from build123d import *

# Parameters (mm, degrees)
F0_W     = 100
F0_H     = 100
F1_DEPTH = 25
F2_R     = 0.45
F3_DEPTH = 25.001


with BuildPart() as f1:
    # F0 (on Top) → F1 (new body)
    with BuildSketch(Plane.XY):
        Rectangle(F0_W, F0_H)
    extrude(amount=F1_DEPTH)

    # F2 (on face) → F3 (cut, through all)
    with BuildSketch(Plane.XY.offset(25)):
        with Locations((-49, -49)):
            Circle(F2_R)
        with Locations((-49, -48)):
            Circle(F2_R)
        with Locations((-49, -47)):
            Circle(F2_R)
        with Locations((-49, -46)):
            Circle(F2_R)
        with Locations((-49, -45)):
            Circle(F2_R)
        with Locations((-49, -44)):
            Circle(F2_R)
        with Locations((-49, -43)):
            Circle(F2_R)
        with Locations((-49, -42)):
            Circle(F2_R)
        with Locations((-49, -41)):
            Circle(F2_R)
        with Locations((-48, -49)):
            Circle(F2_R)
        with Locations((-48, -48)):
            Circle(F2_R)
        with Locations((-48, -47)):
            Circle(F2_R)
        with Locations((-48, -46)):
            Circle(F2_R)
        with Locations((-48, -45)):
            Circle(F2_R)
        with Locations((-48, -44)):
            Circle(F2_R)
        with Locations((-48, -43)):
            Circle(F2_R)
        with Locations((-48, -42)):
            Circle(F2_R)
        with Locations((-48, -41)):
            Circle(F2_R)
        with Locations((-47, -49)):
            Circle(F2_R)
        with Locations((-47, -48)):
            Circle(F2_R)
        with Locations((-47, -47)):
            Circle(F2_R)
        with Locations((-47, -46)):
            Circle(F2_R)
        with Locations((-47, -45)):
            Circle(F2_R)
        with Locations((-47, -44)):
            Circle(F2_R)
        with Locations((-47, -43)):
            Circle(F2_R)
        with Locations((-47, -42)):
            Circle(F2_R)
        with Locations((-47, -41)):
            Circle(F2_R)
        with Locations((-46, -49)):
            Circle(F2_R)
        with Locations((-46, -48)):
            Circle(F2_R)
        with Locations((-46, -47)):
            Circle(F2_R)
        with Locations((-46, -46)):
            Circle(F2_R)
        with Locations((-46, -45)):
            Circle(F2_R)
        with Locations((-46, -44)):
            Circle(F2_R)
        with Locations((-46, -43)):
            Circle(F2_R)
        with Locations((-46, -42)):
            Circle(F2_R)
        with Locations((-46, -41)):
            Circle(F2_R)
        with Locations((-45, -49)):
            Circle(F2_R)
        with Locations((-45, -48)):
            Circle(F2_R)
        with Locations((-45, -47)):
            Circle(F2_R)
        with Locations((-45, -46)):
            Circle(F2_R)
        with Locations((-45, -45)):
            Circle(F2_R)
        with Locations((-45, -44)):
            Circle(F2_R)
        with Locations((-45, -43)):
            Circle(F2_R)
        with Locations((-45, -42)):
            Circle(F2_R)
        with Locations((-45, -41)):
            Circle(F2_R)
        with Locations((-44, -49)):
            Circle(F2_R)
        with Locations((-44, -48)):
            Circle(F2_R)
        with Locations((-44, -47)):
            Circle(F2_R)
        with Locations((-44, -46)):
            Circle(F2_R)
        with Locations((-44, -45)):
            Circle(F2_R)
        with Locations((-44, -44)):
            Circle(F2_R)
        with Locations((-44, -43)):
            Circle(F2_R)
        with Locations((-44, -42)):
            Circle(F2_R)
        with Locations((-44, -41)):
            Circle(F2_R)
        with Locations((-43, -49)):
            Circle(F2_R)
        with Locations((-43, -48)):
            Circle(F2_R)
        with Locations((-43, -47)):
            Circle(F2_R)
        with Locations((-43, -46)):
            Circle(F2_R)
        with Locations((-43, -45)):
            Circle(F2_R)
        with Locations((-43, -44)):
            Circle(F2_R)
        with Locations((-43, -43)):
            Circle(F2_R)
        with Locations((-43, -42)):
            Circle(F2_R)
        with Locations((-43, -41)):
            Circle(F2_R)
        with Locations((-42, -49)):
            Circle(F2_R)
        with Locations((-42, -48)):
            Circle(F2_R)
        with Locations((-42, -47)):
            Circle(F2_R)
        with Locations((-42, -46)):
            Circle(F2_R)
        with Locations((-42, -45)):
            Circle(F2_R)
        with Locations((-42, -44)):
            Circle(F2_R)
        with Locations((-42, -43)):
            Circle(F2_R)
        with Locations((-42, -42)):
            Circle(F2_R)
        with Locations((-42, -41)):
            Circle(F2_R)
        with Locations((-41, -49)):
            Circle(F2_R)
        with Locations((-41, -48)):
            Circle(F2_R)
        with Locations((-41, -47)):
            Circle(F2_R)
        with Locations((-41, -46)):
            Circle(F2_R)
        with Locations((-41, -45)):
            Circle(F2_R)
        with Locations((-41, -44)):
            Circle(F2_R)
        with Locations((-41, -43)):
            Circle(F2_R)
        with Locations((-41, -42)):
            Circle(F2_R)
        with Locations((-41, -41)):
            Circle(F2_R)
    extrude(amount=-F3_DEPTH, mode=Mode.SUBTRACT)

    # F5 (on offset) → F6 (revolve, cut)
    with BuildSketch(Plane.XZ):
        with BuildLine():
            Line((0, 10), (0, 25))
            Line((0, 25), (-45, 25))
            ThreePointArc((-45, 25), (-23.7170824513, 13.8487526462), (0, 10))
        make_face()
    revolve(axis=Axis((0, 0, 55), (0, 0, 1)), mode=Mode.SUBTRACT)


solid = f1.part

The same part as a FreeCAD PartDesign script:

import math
import FreeCAD as App
import Part
import Sketcher

doc = App.newDocument("Part")
body = doc.addObject("PartDesign::Body", "Body")

sketch1 = doc.addObject("Sketcher::SketchObject", "Sketch")
body.addObject(sketch1)
sketch1.AttachmentSupport = (doc.XY_Plane, [""])
sketch1.MapMode = "FlatFace"
sketch1.addGeometry([
    Part.LineSegment(App.Vector(-50, 50, 0), App.Vector(-50, -50, 0)),
    Part.LineSegment(App.Vector(-50, -50, 0), App.Vector(50, -50, 0)),
    Part.LineSegment(App.Vector(50, -50, 0), App.Vector(50, 50, 0)),
    Part.LineSegment(App.Vector(50, 50, 0), App.Vector(-50, 50, 0)),
], False)
sketch1.addConstraint([
    Sketcher.Constraint("Coincident", 0, 2, 1, 1),
    Sketcher.Constraint("Coincident", 1, 2, 2, 1),
    Sketcher.Constraint("Coincident", 2, 2, 3, 1),
    Sketcher.Constraint("Coincident", 3, 2, 0, 1),
    Sketcher.Constraint("Vertical", 0),
    Sketcher.Constraint("Horizontal", 1),
    Sketcher.Constraint("Vertical", 2),
    Sketcher.Constraint("Horizontal", 3),
    Sketcher.Constraint("Symmetric", 0, 2, 2, 2, -1, 1),
    Sketcher.Constraint("Equal", 3, 0),
    Sketcher.Constraint("DistanceX", 1, 1, 1, 2, 100.0),
])
pad1 = doc.addObject("PartDesign::Pad", "Pad")
body.addObject(pad1)
pad1.Profile = sketch1
pad1.Length = 25

sketch2 = doc.addObject("Sketcher::SketchObject", "Sketch001")
body.addObject(sketch2)
sketch2.AttachmentSupport = (doc.XY_Plane, [""])
sketch2.MapMode = "FlatFace"
sketch2.AttachmentOffset = App.Placement(App.Vector(0, 0, 25), App.Rotation())
sketch2.addGeometry([
    Part.Circle(App.Vector(-49, -49, 0), App.Vector(0, 0, 1), 0.45),
    Part.Circle(App.Vector(-49, -48, 0), App.Vector(0, 0, 1), 0.45),
    Part.Circle(App.Vector(-49, -47, 0), App.Vector(0, 0, 1), 0.45),
    Part.Circle(App.Vector(-49, -46, 0), App.Vector(0, 0, 1), 0.45),
    Part.Circle(App.Vector(-49, -45, 0), App.Vector(0, 0, 1), 0.45),
    Part.Circle(App.Vector(-49, -44, 0), App.Vector(0, 0, 1), 0.45),
    Part.Circle(App.Vector(-49, -43, 0), App.Vector(0, 0, 1), 0.45),
    Part.Circle(App.Vector(-49, -42, 0), App.Vector(0, 0, 1), 0.45),
    Part.Circle(App.Vector(-49, -41, 0), App.Vector(0, 0, 1), 0.45),
    Part.Circle(App.Vector(-48, -49, 0), App.Vector(0, 0, 1), 0.45),
    Part.Circle(App.Vector(-48, -48, 0), App.Vector(0, 0, 1), 0.45),
    Part.Circle(App.Vector(-48, -47, 0), App.Vector(0, 0, 1), 0.45),
    Part.Circle(App.Vector(-48, -46, 0), App.Vector(0, 0, 1), 0.45),
    Part.Circle(App.Vector(-48, -45, 0), App.Vector(0, 0, 1), 0.45),
    Part.Circle(App.Vector(-48, -44, 0), App.Vector(0, 0, 1), 0.45),
    Part.Circle(App.Vector(-48, -43, 0), App.Vector(0, 0, 1), 0.45),
    Part.Circle(App.Vector(-48, -42, 0), App.Vector(0, 0, 1), 0.45),
    Part.Circle(App.Vector(-48, -41, 0), App.Vector(0, 0, 1), 0.45),
    Part.Circle(App.Vector(-47, -49, 0), App.Vector(0, 0, 1), 0.45),
    Part.Circle(App.Vector(-47, -48, 0), App.Vector(0, 0, 1), 0.45),
    Part.Circle(App.Vector(-47, -47, 0), App.Vector(0, 0, 1), 0.45),
    Part.Circle(App.Vector(-47, -46, 0), App.Vector(0, 0, 1), 0.45),
    Part.Circle(App.Vector(-47, -45, 0), App.Vector(0, 0, 1), 0.45),
    Part.Circle(App.Vector(-47, -44, 0), App.Vector(0, 0, 1), 0.45),
    Part.Circle(App.Vector(-47, -43, 0), App.Vector(0, 0, 1), 0.45),
    Part.Circle(App.Vector(-47, -42, 0), App.Vector(0, 0, 1), 0.45),
    Part.Circle(App.Vector(-47, -41, 0), App.Vector(0, 0, 1), 0.45),
    Part.Circle(App.Vector(-46, -49, 0), App.Vector(0, 0, 1), 0.45),
    Part.Circle(App.Vector(-46, -48, 0), App.Vector(0, 0, 1), 0.45),
    Part.Circle(App.Vector(-46, -47, 0), App.Vector(0, 0, 1), 0.45),
    Part.Circle(App.Vector(-46, -46, 0), App.Vector(0, 0, 1), 0.45),
    Part.Circle(App.Vector(-46, -45, 0), App.Vector(0, 0, 1), 0.45),
    Part.Circle(App.Vector(-46, -44, 0), App.Vector(0, 0, 1), 0.45),
    Part.Circle(App.Vector(-46, -43, 0), App.Vector(0, 0, 1), 0.45),
    Part.Circle(App.Vector(-46, -42, 0), App.Vector(0, 0, 1), 0.45),
    Part.Circle(App.Vector(-46, -41, 0), App.Vector(0, 0, 1), 0.45),
    Part.Circle(App.Vector(-45, -49, 0), App.Vector(0, 0, 1), 0.45),
    Part.Circle(App.Vector(-45, -48, 0), App.Vector(0, 0, 1), 0.45),
    Part.Circle(App.Vector(-45, -47, 0), App.Vector(0, 0, 1), 0.45),
    Part.Circle(App.Vector(-45, -46, 0), App.Vector(0, 0, 1), 0.45),
    Part.Circle(App.Vector(-45, -45, 0), App.Vector(0, 0, 1), 0.45),
    Part.Circle(App.Vector(-45, -44, 0), App.Vector(0, 0, 1), 0.45),
    Part.Circle(App.Vector(-45, -43, 0), App.Vector(0, 0, 1), 0.45),
    Part.Circle(App.Vector(-45, -42, 0), App.Vector(0, 0, 1), 0.45),
    Part.Circle(App.Vector(-45, -41, 0), App.Vector(0, 0, 1), 0.45),
    Part.Circle(App.Vector(-44, -49, 0), App.Vector(0, 0, 1), 0.45),
    Part.Circle(App.Vector(-44, -48, 0), App.Vector(0, 0, 1), 0.45),
    Part.Circle(App.Vector(-44, -47, 0), App.Vector(0, 0, 1), 0.45),
    Part.Circle(App.Vector(-44, -46, 0), App.Vector(0, 0, 1), 0.45),
    Part.Circle(App.Vector(-44, -45, 0), App.Vector(0, 0, 1), 0.45),
    Part.Circle(App.Vector(-44, -44, 0), App.Vector(0, 0, 1), 0.45),
    Part.Circle(App.Vector(-44, -43, 0), App.Vector(0, 0, 1), 0.45),
    Part.Circle(App.Vector(-44, -42, 0), App.Vector(0, 0, 1), 0.45),
    Part.Circle(App.Vector(-44, -41, 0), App.Vector(0, 0, 1), 0.45),
    Part.Circle(App.Vector(-43, -49, 0), App.Vector(0, 0, 1), 0.45),
    Part.Circle(App.Vector(-43, -48, 0), App.Vector(0, 0, 1), 0.45),
    Part.Circle(App.Vector(-43, -47, 0), App.Vector(0, 0, 1), 0.45),
    Part.Circle(App.Vector(-43, -46, 0), App.Vector(0, 0, 1), 0.45),
    Part.Circle(App.Vector(-43, -45, 0), App.Vector(0, 0, 1), 0.45),
    Part.Circle(App.Vector(-43, -44, 0), App.Vector(0, 0, 1), 0.45),
    Part.Circle(App.Vector(-43, -43, 0), App.Vector(0, 0, 1), 0.45),
    Part.Circle(App.Vector(-43, -42, 0), App.Vector(0, 0, 1), 0.45),
    Part.Circle(App.Vector(-43, -41, 0), App.Vector(0, 0, 1), 0.45),
    Part.Circle(App.Vector(-42, -49, 0), App.Vector(0, 0, 1), 0.45),
    Part.Circle(App.Vector(-42, -48, 0), App.Vector(0, 0, 1), 0.45),
    Part.Circle(App.Vector(-42, -47, 0), App.Vector(0, 0, 1), 0.45),
    Part.Circle(App.Vector(-42, -46, 0), App.Vector(0, 0, 1), 0.45),
    Part.Circle(App.Vector(-42, -45, 0), App.Vector(0, 0, 1), 0.45),
    Part.Circle(App.Vector(-42, -44, 0), App.Vector(0, 0, 1), 0.45),
    Part.Circle(App.Vector(-42, -43, 0), App.Vector(0, 0, 1), 0.45),
    Part.Circle(App.Vector(-42, -42, 0), App.Vector(0, 0, 1), 0.45),
    Part.Circle(App.Vector(-42, -41, 0), App.Vector(0, 0, 1), 0.45),
    Part.Circle(App.Vector(-41, -49, 0), App.Vector(0, 0, 1), 0.45),
    Part.Circle(App.Vector(-41, -48, 0), App.Vector(0, 0, 1), 0.45),
    Part.Circle(App.Vector(-41, -47, 0), App.Vector(0, 0, 1), 0.45),
    Part.Circle(App.Vector(-41, -46, 0), App.Vector(0, 0, 1), 0.45),
    Part.Circle(App.Vector(-41, -45, 0), App.Vector(0, 0, 1), 0.45),
    Part.Circle(App.Vector(-41, -44, 0), App.Vector(0, 0, 1), 0.45),
    Part.Circle(App.Vector(-41, -43, 0), App.Vector(0, 0, 1), 0.45),
    Part.Circle(App.Vector(-41, -42, 0), App.Vector(0, 0, 1), 0.45),
    Part.Circle(App.Vector(-41, -41, 0), App.Vector(0, 0, 1), 0.45),
], False)
sketch2.addConstraint([
    Sketcher.Constraint("Equal", 0, 1),
    Sketcher.Constraint("Equal", 1, 2),
    Sketcher.Constraint("Equal", 2, 3),
    Sketcher.Constraint("Equal", 3, 4),
    Sketcher.Constraint("Equal", 4, 5),
    Sketcher.Constraint("Equal", 5, 6),
    Sketcher.Constraint("Equal", 6, 7),
    Sketcher.Constraint("Equal", 7, 8),
    Sketcher.Constraint("Equal", 8, 9),
    Sketcher.Constraint("Equal", 9, 10),
    Sketcher.Constraint("Equal", 10, 11),
    Sketcher.Constraint("Equal", 11, 12),
    Sketcher.Constraint("Equal", 12, 13),
    Sketcher.Constraint("Equal", 13, 14),
    Sketcher.Constraint("Equal", 14, 15),
    Sketcher.Constraint("Equal", 15, 16),
    Sketcher.Constraint("Equal", 16, 17),
    Sketcher.Constraint("Equal", 17, 18),
    Sketcher.Constraint("Equal", 18, 19),
    Sketcher.Constraint("Equal", 19, 20),
    Sketcher.Constraint("Equal", 20, 21),
    Sketcher.Constraint("Equal", 21, 22),
    Sketcher.Constraint("Equal", 22, 23),
    Sketcher.Constraint("Equal", 23, 24),
    Sketcher.Constraint("Equal", 24, 25),
    Sketcher.Constraint("Equal", 25, 26),
    Sketcher.Constraint("Equal", 26, 27),
    Sketcher.Constraint("Equal", 27, 28),
    Sketcher.Constraint("Equal", 28, 29),
    Sketcher.Constraint("Equal", 29, 30),
    Sketcher.Constraint("Equal", 30, 31),
    Sketcher.Constraint("Equal", 31, 32),
    Sketcher.Constraint("Equal", 32, 33),
    Sketcher.Constraint("Equal", 33, 34),
    Sketcher.Constraint("Equal", 34, 35),
    Sketcher.Constraint("Equal", 35, 36),
    Sketcher.Constraint("Equal", 36, 37),
    Sketcher.Constraint("Equal", 37, 38),
    Sketcher.Constraint("Equal", 38, 39),
    Sketcher.Constraint("Equal", 39, 40),
    Sketcher.Constraint("Equal", 40, 41),
    Sketcher.Constraint("Equal", 41, 42),
    Sketcher.Constraint("Equal", 42, 43),
    Sketcher.Constraint("Equal", 43, 44),
    Sketcher.Constraint("Equal", 44, 45),
    Sketcher.Constraint("Equal", 45, 46),
    Sketcher.Constraint("Equal", 46, 47),
    Sketcher.Constraint("Equal", 47, 48),
    Sketcher.Constraint("Equal", 48, 49),
    Sketcher.Constraint("Equal", 49, 50),
    Sketcher.Constraint("Equal", 50, 51),
    Sketcher.Constraint("Equal", 51, 52),
    Sketcher.Constraint("Equal", 52, 53),
    Sketcher.Constraint("Equal", 53, 54),
    Sketcher.Constraint("Equal", 54, 55),
    Sketcher.Constraint("Equal", 55, 56),
    Sketcher.Constraint("Equal", 56, 57),
    Sketcher.Constraint("Equal", 57, 58),
    Sketcher.Constraint("Equal", 58, 59),
    Sketcher.Constraint("Equal", 59, 60),
    Sketcher.Constraint("Equal", 60, 61),
    Sketcher.Constraint("Equal", 61, 62),
    Sketcher.Constraint("Equal", 62, 63),
    Sketcher.Constraint("Equal", 63, 64),
    Sketcher.Constraint("Equal", 64, 65),
    Sketcher.Constraint("Equal", 65, 66),
    Sketcher.Constraint("Equal", 66, 67),
    Sketcher.Constraint("Equal", 67, 68),
    Sketcher.Constraint("Equal", 68, 69),
    Sketcher.Constraint("Equal", 69, 70),
    Sketcher.Constraint("Equal", 70, 71),
    Sketcher.Constraint("Equal", 71, 72),
    Sketcher.Constraint("Equal", 72, 73),
    Sketcher.Constraint("Equal", 73, 74),
    Sketcher.Constraint("Equal", 74, 75),
    Sketcher.Constraint("Equal", 75, 76),
    Sketcher.Constraint("Equal", 76, 77),
    Sketcher.Constraint("Equal", 77, 78),
    Sketcher.Constraint("Equal", 78, 79),
    Sketcher.Constraint("Equal", 79, 80),
    Sketcher.Constraint("Horizontal", 0, 3, 9, 3),
    Sketcher.Constraint("Horizontal", 1, 3, 10, 3),
    Sketcher.Constraint("Horizontal", 2, 3, 11, 3),
    Sketcher.Constraint("Horizontal", 3, 3, 12, 3),
    Sketcher.Constraint("Horizontal", 4, 3, 13, 3),
    Sketcher.Constraint("Horizontal", 5, 3, 14, 3),
    Sketcher.Constraint("Horizontal", 6, 3, 15, 3),
    Sketcher.Constraint("Horizontal", 7, 3, 16, 3),
    Sketcher.Constraint("Horizontal", 8, 3, 17, 3),
    Sketcher.Constraint("Horizontal", 9, 3, 18, 3),
    Sketcher.Constraint("Horizontal", 10, 3, 19, 3),
    Sketcher.Constraint("Horizontal", 11, 3, 20, 3),
    Sketcher.Constraint("Horizontal", 12, 3, 21, 3),
    Sketcher.Constraint("Horizontal", 13, 3, 22, 3),
    Sketcher.Constraint("Horizontal", 14, 3, 23, 3),
    Sketcher.Constraint("Horizontal", 15, 3, 24, 3),
    Sketcher.Constraint("Horizontal", 16, 3, 25, 3),
    Sketcher.Constraint("Horizontal", 17, 3, 26, 3),
    Sketcher.Constraint("Horizontal", 18, 3, 27, 3),
    Sketcher.Constraint("Horizontal", 19, 3, 28, 3),
    Sketcher.Constraint("Horizontal", 20, 3, 29, 3),
    Sketcher.Constraint("Horizontal", 21, 3, 30, 3),
    Sketcher.Constraint("Horizontal", 22, 3, 31, 3),
    Sketcher.Constraint("Horizontal", 23, 3, 32, 3),
    Sketcher.Constraint("Horizontal", 24, 3, 33, 3),
    Sketcher.Constraint("Horizontal", 25, 3, 34, 3),
    Sketcher.Constraint("Horizontal", 26, 3, 35, 3),
    Sketcher.Constraint("Horizontal", 27, 3, 36, 3),
    Sketcher.Constraint("Horizontal", 28, 3, 37, 3),
    Sketcher.Constraint("Horizontal", 29, 3, 38, 3),
    Sketcher.Constraint("Horizontal", 30, 3, 39, 3),
    Sketcher.Constraint("Horizontal", 31, 3, 40, 3),
    Sketcher.Constraint("Horizontal", 32, 3, 41, 3),
    Sketcher.Constraint("Horizontal", 33, 3, 42, 3),
    Sketcher.Constraint("Horizontal", 34, 3, 43, 3),
    Sketcher.Constraint("Horizontal", 35, 3, 44, 3),
    Sketcher.Constraint("Horizontal", 36, 3, 45, 3),
    Sketcher.Constraint("Horizontal", 37, 3, 46, 3),
    Sketcher.Constraint("Horizontal", 38, 3, 47, 3),
    Sketcher.Constraint("Horizontal", 39, 3, 48, 3),
    Sketcher.Constraint("Horizontal", 40, 3, 49, 3),
    Sketcher.Constraint("Horizontal", 41, 3, 50, 3),
    Sketcher.Constraint("Horizontal", 42, 3, 51, 3),
    Sketcher.Constraint("Horizontal", 43, 3, 52, 3),
    Sketcher.Constraint("Horizontal", 44, 3, 53, 3),
    Sketcher.Constraint("Horizontal", 45, 3, 54, 3),
    Sketcher.Constraint("Horizontal", 46, 3, 55, 3),
    Sketcher.Constraint("Horizontal", 47, 3, 56, 3),
    Sketcher.Constraint("Horizontal", 48, 3, 57, 3),
    Sketcher.Constraint("Horizontal", 49, 3, 58, 3),
    Sketcher.Constraint("Horizontal", 50, 3, 59, 3),
    Sketcher.Constraint("Horizontal", 51, 3, 60, 3),
    Sketcher.Constraint("Horizontal", 52, 3, 61, 3),
    Sketcher.Constraint("Horizontal", 53, 3, 62, 3),
    Sketcher.Constraint("Horizontal", 54, 3, 63, 3),
    Sketcher.Constraint("Horizontal", 55, 3, 64, 3),
    Sketcher.Constraint("Horizontal", 56, 3, 65, 3),
    Sketcher.Constraint("Horizontal", 57, 3, 66, 3),
    Sketcher.Constraint("Horizontal", 58, 3, 67, 3),
    Sketcher.Constraint("Horizontal", 59, 3, 68, 3),
    Sketcher.Constraint("Horizontal", 60, 3, 69, 3),
    Sketcher.Constraint("Horizontal", 61, 3, 70, 3),
    Sketcher.Constraint("Horizontal", 62, 3, 71, 3),
    Sketcher.Constraint("Horizontal", 63, 3, 72, 3),
    Sketcher.Constraint("Horizontal", 64, 3, 73, 3),
    Sketcher.Constraint("Horizontal", 65, 3, 74, 3),
    Sketcher.Constraint("Horizontal", 66, 3, 75, 3),
    Sketcher.Constraint("Horizontal", 67, 3, 76, 3),
    Sketcher.Constraint("Horizontal", 68, 3, 77, 3),
    Sketcher.Constraint("Horizontal", 69, 3, 78, 3),
    Sketcher.Constraint("Horizontal", 70, 3, 79, 3),
    Sketcher.Constraint("Horizontal", 71, 3, 80, 3),
    Sketcher.Constraint("Vertical", 0, 3, 1, 3),
    Sketcher.Constraint("Vertical", 1, 3, 2, 3),
    Sketcher.Constraint("Vertical", 2, 3, 3, 3),
    Sketcher.Constraint("Vertical", 3, 3, 4, 3),
    Sketcher.Constraint("Vertical", 4, 3, 5, 3),
    Sketcher.Constraint("Vertical", 5, 3, 6, 3),
    Sketcher.Constraint("Vertical", 6, 3, 7, 3),
    Sketcher.Constraint("Vertical", 7, 3, 8, 3),
    Sketcher.Constraint("Vertical", 9, 3, 10, 3),
    Sketcher.Constraint("Vertical", 10, 3, 11, 3),
    Sketcher.Constraint("Vertical", 11, 3, 12, 3),
    Sketcher.Constraint("Vertical", 12, 3, 13, 3),
    Sketcher.Constraint("Vertical", 13, 3, 14, 3),
    Sketcher.Constraint("Vertical", 14, 3, 15, 3),
    Sketcher.Constraint("Vertical", 15, 3, 16, 3),
    Sketcher.Constraint("Vertical", 16, 3, 17, 3),
    Sketcher.Constraint("Vertical", 18, 3, 19, 3),
    Sketcher.Constraint("Vertical", 19, 3, 20, 3),
    Sketcher.Constraint("Vertical", 20, 3, 21, 3),
    Sketcher.Constraint("Vertical", 21, 3, 22, 3),
    Sketcher.Constraint("Vertical", 22, 3, 23, 3),
    Sketcher.Constraint("Vertical", 23, 3, 24, 3),
    Sketcher.Constraint("Vertical", 24, 3, 25, 3),
    Sketcher.Constraint("Vertical", 25, 3, 26, 3),
    Sketcher.Constraint("Vertical", 27, 3, 28, 3),
    Sketcher.Constraint("Vertical", 28, 3, 29, 3),
    Sketcher.Constraint("Vertical", 29, 3, 30, 3),
    Sketcher.Constraint("Vertical", 30, 3, 31, 3),
    Sketcher.Constraint("Vertical", 31, 3, 32, 3),
    Sketcher.Constraint("Vertical", 32, 3, 33, 3),
    Sketcher.Constraint("Vertical", 33, 3, 34, 3),
    Sketcher.Constraint("Vertical", 34, 3, 35, 3),
    Sketcher.Constraint("Vertical", 36, 3, 37, 3),
    Sketcher.Constraint("Vertical", 37, 3, 38, 3),
    Sketcher.Constraint("Vertical", 38, 3, 39, 3),
    Sketcher.Constraint("Vertical", 39, 3, 40, 3),
    Sketcher.Constraint("Vertical", 40, 3, 41, 3),
    Sketcher.Constraint("Vertical", 41, 3, 42, 3),
    Sketcher.Constraint("Vertical", 42, 3, 43, 3),
    Sketcher.Constraint("Vertical", 43, 3, 44, 3),
    Sketcher.Constraint("Vertical", 45, 3, 46, 3),
    Sketcher.Constraint("Vertical", 46, 3, 47, 3),
    Sketcher.Constraint("Vertical", 47, 3, 48, 3),
    Sketcher.Constraint("Vertical", 48, 3, 49, 3),
    Sketcher.Constraint("Vertical", 49, 3, 50, 3),
    Sketcher.Constraint("Vertical", 50, 3, 51, 3),
    Sketcher.Constraint("Vertical", 51, 3, 52, 3),
    Sketcher.Constraint("Vertical", 52, 3, 53, 3),
    Sketcher.Constraint("Vertical", 54, 3, 55, 3),
    Sketcher.Constraint("Vertical", 55, 3, 56, 3),
    Sketcher.Constraint("Vertical", 56, 3, 57, 3),
    Sketcher.Constraint("Vertical", 57, 3, 58, 3),
    Sketcher.Constraint("Vertical", 58, 3, 59, 3),
    Sketcher.Constraint("Vertical", 59, 3, 60, 3),
    Sketcher.Constraint("Vertical", 60, 3, 61, 3),
    Sketcher.Constraint("Vertical", 61, 3, 62, 3),
    Sketcher.Constraint("Vertical", 63, 3, 64, 3),
    Sketcher.Constraint("Vertical", 64, 3, 65, 3),
    Sketcher.Constraint("Vertical", 65, 3, 66, 3),
    Sketcher.Constraint("Vertical", 66, 3, 67, 3),
    Sketcher.Constraint("Vertical", 67, 3, 68, 3),
    Sketcher.Constraint("Vertical", 68, 3, 69, 3),
    Sketcher.Constraint("Vertical", 69, 3, 70, 3),
    Sketcher.Constraint("Vertical", 70, 3, 71, 3),
    Sketcher.Constraint("Vertical", 72, 3, 73, 3),
    Sketcher.Constraint("Vertical", 73, 3, 74, 3),
    Sketcher.Constraint("Vertical", 74, 3, 75, 3),
    Sketcher.Constraint("Vertical", 75, 3, 76, 3),
    Sketcher.Constraint("Vertical", 76, 3, 77, 3),
    Sketcher.Constraint("Vertical", 77, 3, 78, 3),
    Sketcher.Constraint("Vertical", 78, 3, 79, 3),
    Sketcher.Constraint("Vertical", 79, 3, 80, 3),
    Sketcher.Constraint("Diameter", 0, 0.9),
    Sketcher.Constraint("DistanceX", 0, 3, -1, 1, 49.0),
    Sketcher.Constraint("DistanceY", 0, 3, -1, 1, 49.0),
    Sketcher.Constraint("DistanceY", 1, 3, -1, 1, 48.0),
    Sketcher.Constraint("DistanceY", 2, 3, -1, 1, 47.0),
    Sketcher.Constraint("DistanceY", 3, 3, -1, 1, 46.0),
    Sketcher.Constraint("DistanceY", 4, 3, -1, 1, 45.0),
    Sketcher.Constraint("DistanceY", 5, 3, -1, 1, 44.0),
    Sketcher.Constraint("DistanceY", 6, 3, -1, 1, 43.0),
    Sketcher.Constraint("DistanceY", 7, 3, -1, 1, 42.0),
    Sketcher.Constraint("DistanceY", 8, 3, -1, 1, 41.0),
    Sketcher.Constraint("DistanceX", 9, 3, -1, 1, 48.0),
    Sketcher.Constraint("DistanceX", 18, 3, -1, 1, 47.0),
    Sketcher.Constraint("DistanceX", 27, 3, -1, 1, 46.0),
    Sketcher.Constraint("DistanceX", 36, 3, -1, 1, 45.0),
    Sketcher.Constraint("DistanceX", 45, 3, -1, 1, 44.0),
    Sketcher.Constraint("DistanceX", 54, 3, -1, 1, 43.0),
    Sketcher.Constraint("DistanceX", 63, 3, -1, 1, 42.0),
    Sketcher.Constraint("DistanceX", 72, 3, -1, 1, 41.0),
])
pocket1 = doc.addObject("PartDesign::Pocket", "Pocket")
body.addObject(pocket1)
pocket1.Profile = sketch2
pocket1.Type = "ThroughAll"

sketch3 = doc.addObject("Sketcher::SketchObject", "Sketch002")
body.addObject(sketch3)
sketch3.AttachmentSupport = (doc.XZ_Plane, [""])
sketch3.MapMode = "FlatFace"
sketch3.addGeometry([
    Part.LineSegment(App.Vector(0, 10, 0), App.Vector(0, 25, 0)),
    Part.LineSegment(App.Vector(0, 25, 0), App.Vector(-45, 25, 0)),
    Part.ArcOfCircle(Part.Circle(App.Vector(0, 85, 0), App.Vector(0, 0, 1), 75), math.radians(-126.869898), math.radians(-90)),
], False)
sketch3.addConstraint([
    Sketcher.Constraint("Coincident", 0, 2, 1, 1),
    Sketcher.Constraint("Coincident", 1, 2, 2, 1),
    Sketcher.Constraint("Coincident", 2, 2, 0, 1),
    Sketcher.Constraint("Vertical", 0),
    Sketcher.Constraint("Horizontal", 1),
    Sketcher.Constraint("PointOnObject", 2, 3, -2),
    Sketcher.Constraint("PointOnObject", 0, 2, -2),
    Sketcher.Constraint("Radius", 2, 75.0),
    Sketcher.Constraint("DistanceX", 1, 2, 1, 1, 45.0),
    Sketcher.Constraint("DistanceY", -1, 1, 2, 3, 85.0),
])
groove = doc.addObject("PartDesign::Groove", "Groove")
body.addObject(groove)
groove.Profile = sketch3
groove.ReferenceAxis = (sketch3, ["V_Axis"])
groove.Angle = 360

doc.recompute()
